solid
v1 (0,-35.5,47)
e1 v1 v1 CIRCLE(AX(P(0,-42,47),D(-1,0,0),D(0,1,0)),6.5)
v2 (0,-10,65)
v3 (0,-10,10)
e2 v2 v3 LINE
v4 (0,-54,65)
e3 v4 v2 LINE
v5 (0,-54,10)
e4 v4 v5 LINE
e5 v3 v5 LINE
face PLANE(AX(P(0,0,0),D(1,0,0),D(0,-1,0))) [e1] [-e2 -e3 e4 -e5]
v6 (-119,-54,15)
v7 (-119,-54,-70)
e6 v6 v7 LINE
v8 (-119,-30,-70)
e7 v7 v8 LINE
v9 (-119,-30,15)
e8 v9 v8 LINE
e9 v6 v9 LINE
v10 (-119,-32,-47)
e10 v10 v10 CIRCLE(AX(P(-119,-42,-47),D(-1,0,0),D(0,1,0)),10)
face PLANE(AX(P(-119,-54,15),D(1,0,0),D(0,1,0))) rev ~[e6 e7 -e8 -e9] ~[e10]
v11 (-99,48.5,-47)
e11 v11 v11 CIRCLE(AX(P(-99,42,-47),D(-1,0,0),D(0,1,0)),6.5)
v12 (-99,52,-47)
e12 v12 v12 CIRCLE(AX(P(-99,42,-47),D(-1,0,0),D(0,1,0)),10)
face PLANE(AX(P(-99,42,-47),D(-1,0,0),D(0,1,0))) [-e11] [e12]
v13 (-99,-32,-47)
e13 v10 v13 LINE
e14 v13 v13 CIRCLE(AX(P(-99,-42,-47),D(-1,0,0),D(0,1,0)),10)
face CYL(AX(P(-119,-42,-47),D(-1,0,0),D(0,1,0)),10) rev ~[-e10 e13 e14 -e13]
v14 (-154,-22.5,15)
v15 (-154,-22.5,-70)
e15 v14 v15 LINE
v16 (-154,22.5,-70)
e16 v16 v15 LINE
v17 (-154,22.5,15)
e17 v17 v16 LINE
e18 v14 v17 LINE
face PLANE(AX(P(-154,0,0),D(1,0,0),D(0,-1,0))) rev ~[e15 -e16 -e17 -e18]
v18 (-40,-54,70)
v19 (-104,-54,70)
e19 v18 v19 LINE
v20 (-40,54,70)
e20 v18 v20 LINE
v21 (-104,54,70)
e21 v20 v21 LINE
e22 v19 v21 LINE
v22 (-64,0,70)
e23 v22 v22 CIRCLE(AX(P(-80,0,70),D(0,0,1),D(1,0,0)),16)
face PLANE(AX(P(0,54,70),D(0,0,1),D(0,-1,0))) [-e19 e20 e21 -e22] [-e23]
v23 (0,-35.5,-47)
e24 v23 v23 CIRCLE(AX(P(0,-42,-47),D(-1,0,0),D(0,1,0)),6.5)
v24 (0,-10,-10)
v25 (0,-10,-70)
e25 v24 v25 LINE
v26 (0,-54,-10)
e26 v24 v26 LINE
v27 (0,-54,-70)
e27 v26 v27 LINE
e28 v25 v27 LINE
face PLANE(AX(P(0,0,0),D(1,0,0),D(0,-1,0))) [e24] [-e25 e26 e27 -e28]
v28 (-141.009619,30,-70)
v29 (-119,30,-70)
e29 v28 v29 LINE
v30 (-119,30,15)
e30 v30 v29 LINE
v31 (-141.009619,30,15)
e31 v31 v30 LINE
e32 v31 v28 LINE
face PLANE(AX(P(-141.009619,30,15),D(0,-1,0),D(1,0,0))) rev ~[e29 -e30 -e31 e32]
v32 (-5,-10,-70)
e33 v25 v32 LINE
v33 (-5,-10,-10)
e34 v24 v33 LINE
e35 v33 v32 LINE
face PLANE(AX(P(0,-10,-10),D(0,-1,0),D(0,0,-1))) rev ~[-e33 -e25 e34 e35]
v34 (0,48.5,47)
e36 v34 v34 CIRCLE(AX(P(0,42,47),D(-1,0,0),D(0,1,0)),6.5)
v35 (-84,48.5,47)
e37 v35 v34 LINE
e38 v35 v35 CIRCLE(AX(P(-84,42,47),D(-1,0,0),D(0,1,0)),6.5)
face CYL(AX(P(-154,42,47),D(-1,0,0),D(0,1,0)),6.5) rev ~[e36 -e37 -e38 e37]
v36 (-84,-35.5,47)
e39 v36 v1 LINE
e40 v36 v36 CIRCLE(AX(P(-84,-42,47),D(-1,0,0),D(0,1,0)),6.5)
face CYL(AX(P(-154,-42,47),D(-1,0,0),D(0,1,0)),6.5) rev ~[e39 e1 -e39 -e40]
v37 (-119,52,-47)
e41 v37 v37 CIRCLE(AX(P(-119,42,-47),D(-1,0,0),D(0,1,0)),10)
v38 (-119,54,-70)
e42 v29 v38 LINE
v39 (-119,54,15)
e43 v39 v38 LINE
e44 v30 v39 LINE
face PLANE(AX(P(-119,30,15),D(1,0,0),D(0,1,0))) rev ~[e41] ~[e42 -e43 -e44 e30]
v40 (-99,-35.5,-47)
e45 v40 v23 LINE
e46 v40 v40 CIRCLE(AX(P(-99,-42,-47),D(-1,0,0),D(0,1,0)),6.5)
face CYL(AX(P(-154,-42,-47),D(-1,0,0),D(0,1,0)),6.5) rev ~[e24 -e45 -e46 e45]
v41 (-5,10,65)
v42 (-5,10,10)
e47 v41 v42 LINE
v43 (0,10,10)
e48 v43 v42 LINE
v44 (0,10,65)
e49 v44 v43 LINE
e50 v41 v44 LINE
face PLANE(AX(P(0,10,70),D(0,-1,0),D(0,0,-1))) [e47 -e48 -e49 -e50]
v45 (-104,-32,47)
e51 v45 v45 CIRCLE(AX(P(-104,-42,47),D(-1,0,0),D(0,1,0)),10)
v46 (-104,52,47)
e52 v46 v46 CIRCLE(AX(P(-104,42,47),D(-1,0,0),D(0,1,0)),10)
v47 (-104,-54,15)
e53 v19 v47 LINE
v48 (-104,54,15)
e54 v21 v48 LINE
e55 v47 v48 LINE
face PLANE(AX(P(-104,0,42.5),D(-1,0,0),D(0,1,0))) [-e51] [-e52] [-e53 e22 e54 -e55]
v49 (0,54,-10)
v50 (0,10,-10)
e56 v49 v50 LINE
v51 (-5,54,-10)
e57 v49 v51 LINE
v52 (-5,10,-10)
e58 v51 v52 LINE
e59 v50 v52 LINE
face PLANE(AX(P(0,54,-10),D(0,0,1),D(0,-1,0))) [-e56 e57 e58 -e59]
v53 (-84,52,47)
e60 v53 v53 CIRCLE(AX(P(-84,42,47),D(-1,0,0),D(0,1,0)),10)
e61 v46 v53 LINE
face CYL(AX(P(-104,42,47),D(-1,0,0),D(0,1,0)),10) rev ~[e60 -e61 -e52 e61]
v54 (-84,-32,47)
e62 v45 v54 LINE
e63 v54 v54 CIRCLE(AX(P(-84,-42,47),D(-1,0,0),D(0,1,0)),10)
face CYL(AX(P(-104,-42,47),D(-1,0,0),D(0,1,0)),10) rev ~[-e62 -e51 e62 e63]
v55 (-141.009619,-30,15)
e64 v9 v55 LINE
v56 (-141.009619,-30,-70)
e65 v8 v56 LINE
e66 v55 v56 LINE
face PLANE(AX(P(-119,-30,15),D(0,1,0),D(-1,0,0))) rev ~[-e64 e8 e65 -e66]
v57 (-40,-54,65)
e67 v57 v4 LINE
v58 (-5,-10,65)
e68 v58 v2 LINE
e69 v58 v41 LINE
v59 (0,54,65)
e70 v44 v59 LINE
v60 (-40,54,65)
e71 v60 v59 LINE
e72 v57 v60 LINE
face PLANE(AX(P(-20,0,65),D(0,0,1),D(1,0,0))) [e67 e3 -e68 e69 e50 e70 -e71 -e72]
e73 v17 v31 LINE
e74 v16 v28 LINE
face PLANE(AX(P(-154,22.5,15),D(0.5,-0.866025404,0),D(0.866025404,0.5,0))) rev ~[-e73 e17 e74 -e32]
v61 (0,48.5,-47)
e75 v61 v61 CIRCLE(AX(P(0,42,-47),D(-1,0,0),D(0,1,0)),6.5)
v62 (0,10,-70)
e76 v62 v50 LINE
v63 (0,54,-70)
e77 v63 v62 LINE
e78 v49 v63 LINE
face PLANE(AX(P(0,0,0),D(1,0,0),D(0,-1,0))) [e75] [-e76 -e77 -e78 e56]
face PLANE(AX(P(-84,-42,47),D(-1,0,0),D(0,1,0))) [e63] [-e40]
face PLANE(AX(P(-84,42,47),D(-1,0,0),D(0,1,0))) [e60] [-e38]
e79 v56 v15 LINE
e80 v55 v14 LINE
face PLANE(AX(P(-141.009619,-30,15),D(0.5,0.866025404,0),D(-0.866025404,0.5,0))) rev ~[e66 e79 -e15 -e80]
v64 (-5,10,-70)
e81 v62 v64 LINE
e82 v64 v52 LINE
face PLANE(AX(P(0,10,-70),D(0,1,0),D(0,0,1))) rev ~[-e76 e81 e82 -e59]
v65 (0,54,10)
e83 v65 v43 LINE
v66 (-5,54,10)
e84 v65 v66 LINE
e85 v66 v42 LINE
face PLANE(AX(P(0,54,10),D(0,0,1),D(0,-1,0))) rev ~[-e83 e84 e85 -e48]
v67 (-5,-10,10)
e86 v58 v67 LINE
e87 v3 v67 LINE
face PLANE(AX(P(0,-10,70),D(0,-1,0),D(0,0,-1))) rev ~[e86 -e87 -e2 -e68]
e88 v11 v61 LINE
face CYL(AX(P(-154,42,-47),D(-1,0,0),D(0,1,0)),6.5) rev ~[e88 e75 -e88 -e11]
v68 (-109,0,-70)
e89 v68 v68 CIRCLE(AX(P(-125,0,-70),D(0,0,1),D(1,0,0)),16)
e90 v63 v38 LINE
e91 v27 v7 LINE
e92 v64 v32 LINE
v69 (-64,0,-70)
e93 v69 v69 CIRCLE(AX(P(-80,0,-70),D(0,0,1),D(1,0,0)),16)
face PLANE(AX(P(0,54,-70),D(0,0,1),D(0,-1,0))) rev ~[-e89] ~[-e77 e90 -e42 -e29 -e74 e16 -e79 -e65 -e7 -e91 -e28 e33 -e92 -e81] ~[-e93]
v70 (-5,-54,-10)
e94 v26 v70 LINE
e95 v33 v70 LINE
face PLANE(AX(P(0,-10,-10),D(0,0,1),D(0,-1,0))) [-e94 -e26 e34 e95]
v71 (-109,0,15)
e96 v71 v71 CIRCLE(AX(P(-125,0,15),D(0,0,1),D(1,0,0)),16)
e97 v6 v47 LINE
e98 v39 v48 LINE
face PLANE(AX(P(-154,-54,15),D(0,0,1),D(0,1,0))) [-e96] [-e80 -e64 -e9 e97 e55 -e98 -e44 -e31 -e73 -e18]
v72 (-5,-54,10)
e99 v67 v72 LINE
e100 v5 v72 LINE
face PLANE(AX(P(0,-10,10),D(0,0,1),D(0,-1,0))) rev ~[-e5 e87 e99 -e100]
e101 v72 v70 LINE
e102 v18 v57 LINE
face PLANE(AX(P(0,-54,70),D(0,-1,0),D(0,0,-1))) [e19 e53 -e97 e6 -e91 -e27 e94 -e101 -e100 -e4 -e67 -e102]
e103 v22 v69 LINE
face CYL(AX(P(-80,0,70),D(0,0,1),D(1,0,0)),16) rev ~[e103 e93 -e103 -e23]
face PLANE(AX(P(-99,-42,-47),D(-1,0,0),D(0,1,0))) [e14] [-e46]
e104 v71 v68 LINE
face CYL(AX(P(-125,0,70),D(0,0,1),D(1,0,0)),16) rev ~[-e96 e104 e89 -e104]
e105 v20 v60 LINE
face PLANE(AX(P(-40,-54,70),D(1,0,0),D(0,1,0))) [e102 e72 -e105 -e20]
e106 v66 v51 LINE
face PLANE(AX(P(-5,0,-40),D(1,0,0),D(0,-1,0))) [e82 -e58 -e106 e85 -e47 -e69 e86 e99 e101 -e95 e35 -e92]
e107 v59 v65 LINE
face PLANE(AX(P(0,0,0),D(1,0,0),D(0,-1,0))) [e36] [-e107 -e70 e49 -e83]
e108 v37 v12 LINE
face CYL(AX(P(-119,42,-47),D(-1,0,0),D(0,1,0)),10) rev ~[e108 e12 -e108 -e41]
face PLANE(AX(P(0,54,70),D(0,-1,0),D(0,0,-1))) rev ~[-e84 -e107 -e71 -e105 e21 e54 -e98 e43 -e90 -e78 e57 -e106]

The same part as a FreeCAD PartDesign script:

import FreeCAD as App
import Part
import Sketcher
Q = App.Units.Quantity

doc = App.newDocument("Part")
params = doc.addObject("Spreadsheet::Sheet", "Params")
for row, (alias, value) in enumerate([
    ("sketch1_width", "108 mm"),
    ("sketch1_height", "140 mm"),
    ("pad1_length", "154 mm"),
    ("sketch2_diameter", "13 mm"),
    ("sketch3_diameter", "32 mm"),
    ("sketch4_width", "108 mm"),
    ("sketch4_height", "55 mm"),
    ("pocket3_length", "50 mm"),
    ("sketch5_width", "35 mm"),
    ("sketch5_height", "24 mm"),
    ("sketch5_length", "15 mm"),
    ("sketch6_width", "40 mm"),
    ("sketch6_height", "108 mm"),
    ("pocket5_length", "5 mm"),
    ("sketch7_diameter", "20 mm"),
    ("pocket6_length", "20 mm"),
    ("sketch8_diameter", "20 mm"),
    ("pocket7_length", "20 mm"),
    ("sketch9_width", "44 mm"),
    ("sketch9_width2", "20 mm"),
    ("sketch9_height", "60 mm"),
    ("pocket8_length", "5 mm"),
], start=1):
    params.set(f"A{row}", alias)
    params.set(f"B{row}", "=" + value)
    params.setAlias(f"B{row}", alias)

body = doc.addObject("PartDesign::Body", "Body")

# Sketch on YZ plane
sketch1 = body.newObject("Sketcher::SketchObject", "Sketch")
sketch1.AttachmentSupport = (doc.getObject("YZ_Plane"), [""])
sketch1.MapMode = "FlatFace"
sketch1.addGeometry([
    Part.LineSegment(App.Vector(-54, 70, 0), App.Vector(-54, -70, 0)),
    Part.LineSegment(App.Vector(-54, -70, 0), App.Vector(54, -70, 0)),
    Part.LineSegment(App.Vector(54, -70, 0), App.Vector(54, 70, 0)),
    Part.LineSegment(App.Vector(54, 70, 0), App.Vector(-54, 70, 0)),
], False)
sketch1.addConstraint([
    Sketcher.Constraint("Coincident", 0, 2, 1, 1),
    Sketcher.Constraint("Coincident", 1, 2, 2, 1),
    Sketcher.Constraint("Coincident", 2, 2, 3, 1),
    Sketcher.Constraint("Coincident", 3, 2, 0, 1),
    Sketcher.Constraint("Vertical", 0),
    Sketcher.Constraint("Horizontal", 1),
    Sketcher.Constraint("Vertical", 2),
    Sketcher.Constraint("Horizontal", 3),
    Sketcher.Constraint("Symmetric", 0, 2, 2, 2, -1, 1),
    Sketcher.Constraint("DistanceX", 1, 1, 1, 2, Q("108 mm")),
    Sketcher.Constraint("DistanceY", 0, 2, 0, 1, Q("140 mm")),
])
sketch1.setExpression("Constraints[9]", "Params.sketch1_width")
sketch1.setExpression("Constraints[10]", "Params.sketch1_height")
pad1 = body.newObject("PartDesign::Pad", "Pad")
pad1.Profile = sketch1
pad1.setExpression("Length", "Params.pad1_length")
pad1.Reversed = True

# Sketch on YZ plane
sketch2 = body.newObject("Sketcher::SketchObject", "Sketch001")
sketch2.AttachmentSupport = (doc.getObject("YZ_Plane"), [""])
sketch2.MapMode = "FlatFace"
sketch2.AttachmentOffset = App.Placement(App.Vector(0, 0, -154), App.Rotation())
sketch2.addGeometry([
    Part.Circle(App.Vector(42, 47, 0), App.Vector(0, 0, 1), 6),
    Part.Circle(App.Vector(-42, 47, 0), App.Vector(0, 0, 1), 6),
    Part.Circle(App.Vector(42, -47, 0), App.Vector(0, 0, 1), 6),
    Part.Circle(App.Vector(-42, -47, 0), App.Vector(0, 0, 1), 6),
], False)
sketch2.addConstraint([
    Sketcher.Constraint("Equal", 0, 1),
    Sketcher.Constraint("Equal", 1, 2),
    Sketcher.Constraint("Equal", 2, 3),
    Sketcher.Constraint("Symmetric", 1, 3, 2, 3, -1, 1),
    Sketcher.Constraint("Symmetric", 0, 3, 3, 3, -1, 1),
    Sketcher.Constraint("Symmetric", 0, 3, 1, 3, -2),
    Sketcher.Constraint("Diameter", 0, Q("13 mm")),
    Sketcher.Constraint("DistanceX", -1, 1, 0, 3, Q("42 mm")),
    Sketcher.Constraint("DistanceY", -1, 1, 0, 3, Q("47 mm")),
])
sketch2.setExpression("Constraints[6]", "Params.sketch2_diameter")
pocket1 = body.newObject("PartDesign::Pocket", "Pocket")
pocket1.Profile = sketch2
pocket1.Type = "ThroughAll"
pocket1.Reversed = True

# Sketch on XY plane
sketch3 = body.newObject("Sketcher::SketchObject", "Sketch002")
sketch3.AttachmentSupport = (doc.getObject("XY_Plane"), [""])
sketch3.MapMode = "FlatFace"
sketch3.AttachmentOffset = App.Placement(App.Vector(0, 0, -70), App.Rotation())
sketch3.addGeometry([
    Part.Circle(App.Vector(-125, 0, 0), App.Vector(0, 0, 1), 16),
    Part.Circle(App.Vector(-80, 0, 0), App.Vector(0, 0, 1), 16),
], False)
sketch3.addConstraint([
    Sketcher.Constraint("Equal", 0, 1),
    Sketcher.Constraint("PointOnObject", 0, 3, -1),
    Sketcher.Constraint("PointOnObject", 1, 3, -1),
    Sketcher.Constraint("Diameter", 0, Q("32 mm")),
    Sketcher.Constraint("DistanceX", 0, 3, -1, 1, Q("125 mm")),
    Sketcher.Constraint("DistanceX", 1, 3, -1, 1, Q("80 mm")),
])
sketch3.setExpression("Constraints[3]", "Params.sketch3_diameter")
pocket2 = body.newObject("PartDesign::Pocket", "Pocket001")
pocket2.Profile = sketch3
pocket2.Type = "ThroughAll"
pocket2.Reversed = True

# Sketch on YZ plane
sketch4 = body.newObject("Sketcher::SketchObject", "Sketch003")
sketch4.AttachmentSupport = (doc.getObject("YZ_Plane"), [""])
sketch4.MapMode = "FlatFace"
sketch4.AttachmentOffset = App.Placement(App.Vector(0, 0, -154), App.Rotation())
sketch4.addGeometry([
    Part.LineSegment(App.Vector(54, -15, 0), App.Vector(54, -70, 0)),
    Part.LineSegment(App.Vector(54, -70, 0), App.Vector(-54, -70, 0)),
    Part.LineSegment(App.Vector(-54, -70, 0), App.Vector(-54, -15, 0)),
    Part.LineSegment(App.Vector(-54, -15, 0), App.Vector(54, -15, 0)),
], False)
sketch4.addConstraint([
    Sketcher.Constraint("Coincident", 0, 2, 1, 1),
    Sketcher.Constraint("Coincident", 1, 2, 2, 1),
    Sketcher.Constraint("Coincident", 2, 2, 3, 1),
    Sketcher.Constraint("Coincident", 3, 2, 0, 1),
    Sketcher.Constraint("Vertical", 0),
    Sketcher.Constraint("Horizontal", 1),
    Sketcher.Constraint("Vertical", 2),
    Sketcher.Constraint("Horizontal", 3),
    Sketcher.Constraint("DistanceX", 1, 2, 1, 1, Q("108 mm")),
    Sketcher.Constraint("DistanceY", 0, 2, 0, 1, Q("55 mm")),
    Sketcher.Constraint("DistanceX", -1, 1, 0, 2, Q("54 mm")),
    Sketcher.Constraint("DistanceY", 0, 2, -1, 1, Q("70 mm")),
])
sketch4.setExpression("Constraints[8]", "Params.sketch4_width")
sketch4.setExpression("Constraints[9]", "Params.sketch4_height")
pocket3 = body.newObject("PartDesign::Pocket", "Pocket002")
pocket3.Profile = sketch4
pocket3.setExpression("Length", "Params.pocket3_length")
pocket3.Reversed = True

# Sketch on XY plane
sketch5 = body.newObject("Sketcher::SketchObject", "Sketch004")
sketch5.AttachmentSupport = (doc.getObject("XY_Plane"), [""])
sketch5.MapMode = "FlatFace"
sketch5.AttachmentOffset = App.Placement(App.Vector(0, 0, -15), App.Rotation())
sketch5.addGeometry([
    Part.LineSegment(App.Vector(-154, 54, 0), App.Vector(-119, 54, 0)),  # 0
    Part.LineSegment(App.Vector(-119, 54, 0), App.Vector(-119, 30, 0)),  # 1
    Part.LineSegment(App.Vector(-119, 30, 0), App.Vector(-141, 30, 0)),  # 2
    Part.LineSegment(App.Vector(-141, 30, 0), App.Vector(-154, 22, 0)),  # 3
    Part.LineSegment(App.Vector(-154, 22, 0), App.Vector(-154, 54, 0)),  # 4
    Part.LineSegment(App.Vector(-119, -30, 0), App.Vector(-119, -54, 0)),  # 5
    Part.LineSegment(App.Vector(-119, -54, 0), App.Vector(-154, -54, 0)),  # 6
    Part.LineSegment(App.Vector(-154, -54, 0), App.Vector(-154, -22, 0)),  # 7
    Part.LineSegment(App.Vector(-154, -22, 0), App.Vector(-141, -30, 0)),  # 8
    Part.LineSegment(App.Vector(-141, -30, 0), App.Vector(-119, -30, 0)),  # 9
], False)
sketch5.addConstraint([
    Sketcher.Constraint("Coincident", 0, 2, 1, 1),
    Sketcher.Constraint("Coincident", 1, 2, 2, 1),
    Sketcher.Constraint("Coincident", 2, 2, 3, 1),
    Sketcher.Constraint("Coincident", 3, 2, 4, 1),
    Sketcher.Constraint("Coincident", 4, 2, 0, 1),
    Sketcher.Constraint("Coincident", 5, 2, 6, 1),
    Sketcher.Constraint("Coincident", 6, 2, 7, 1),
    Sketcher.Constraint("Coincident", 7, 2, 8, 1),
    Sketcher.Constraint("Coincident", 8, 2, 9, 1),
    Sketcher.Constraint("Coincident", 9, 2, 5, 1),
    Sketcher.Constraint("Horizontal", 0),
    Sketcher.Constraint("Vertical", 1),
    Sketcher.Constraint("Horizontal", 2),
    Sketcher.Constraint("Vertical", 4),
    Sketcher.Constraint("Vertical", 5),
    Sketcher.Constraint("Horizontal", 6),
    Sketcher.Constraint("Vertical", 7),
    Sketcher.Constraint("Horizontal", 9),
    Sketcher.Constraint("Symmetric", 0, 2, 5, 2, -1),
    Sketcher.Constraint("Symmetric", 3, 2, 7, 2, -1),
    Sketcher.Constraint("Symmetric", 2, 2, 8, 2, -1),
    Sketcher.Constraint("DistanceX", 0, 1, 0, 2, Q("35 mm")),
    Sketcher.Constraint("DistanceY", 1, 2, 1, 1, Q("24 mm")),
    Sketcher.Constraint("Angle", 3, Q("-150 deg")),
    Sketcher.Constraint("Distance", 3, Q("15 mm")),
    Sketcher.Constraint("DistanceX", 0, 2, -1, 1, Q("119 mm")),
    Sketcher.Constraint("DistanceY", -1, 1, 0, 2, Q("54 mm")),
])
sketch5.setExpression("Constraints[21]", "Params.sketch5_width")
sketch5.setExpression("Constraints[22]", "Params.sketch5_height")
sketch5.setExpression("Constraints[24]", "Params.sketch5_length")
pocket4 = body.newObject("PartDesign::Pocket", "Pocket003")
pocket4.Profile = sketch5
pocket4.Type = "ThroughAll"
pocket4.Reversed = True

# Sketch on XY plane
sketch6 = body.newObject("Sketcher::SketchObject", "Sketch005")
sketch6.AttachmentSupport = (doc.getObject("XY_Plane"), [""])
sketch6.MapMode = "FlatFace"
sketch6.AttachmentOffset = App.Placement(App.Vector(0, 0, -70), App.Rotation())
sketch6.addGeometry([
    Part.LineSegment(App.Vector(-40, -54, 0), App.Vector(-40, 54, 0)),
    Part.LineSegment(App.Vector(-40, 54, 0), App.Vector(0, 54, 0)),
    Part.LineSegment(App.Vector(0, 54, 0), App.Vector(0, -54, 0)),
    Part.LineSegment(App.Vector(0, -54, 0), App.Vector(-40, -54, 0)),
], False)
sketch6.addConstraint([
    Sketcher.Constraint("Coincident", 0, 2, 1, 1),
    Sketcher.Constraint("Coincident", 1, 2, 2, 1),
    Sketcher.Constraint("Coincident", 2, 2, 3, 1),
    Sketcher.Constraint("Coincident", 3, 2, 0, 1),
    Sketcher.Constraint("Vertical", 0),
    Sketcher.Constraint("Horizontal", 1),
    Sketcher.Constraint("Vertical", 2),
    Sketcher.Constraint("Horizontal", 3),
    Sketcher.Constraint("Symmetric", 1, 2, 2, 2, -1, 1),
    Sketcher.Constraint("DistanceX", 1, 1, 1, 2, Q("40 mm")),
    Sketcher.Constraint("DistanceY", 0, 1, 0, 2, Q("108 mm")),
])
sketch6.setExpression("Constraints[9]", "Params.sketch6_width")
sketch6.setExpression("Constraints[10]", "Params.sketch6_height")
pocket5 = body.newObject("PartDesign::Pocket", "Pocket004")
pocket5.Profile = sketch6
pocket5.setExpression("Length", "Params.pocket5_length")
pocket5.Reversed = True

# Sketch on YZ plane
sketch7 = body.newObject("Sketcher::SketchObject", "Sketch006")
sketch7.AttachmentSupport = (doc.getObject("YZ_Plane"), [""])
sketch7.MapMode = "FlatFace"
sketch7.AttachmentOffset = App.Placement(App.Vector(0, 0, -104), App.Rotation())
sketch7.addGeometry([
    Part.Circle(App.Vector(42, -47, 0), App.Vector(0, 0, 1), 10),
    Part.Circle(App.Vector(-42, -47, 0), App.Vector(0, 0, 1), 10),
], False)
sketch7.addConstraint([
    Sketcher.Constraint("Equal", 0, 1),
    Sketcher.Constraint("Symmetric", 0, 3, 1, 3, -2),
    Sketcher.Constraint("Diameter", 0, Q("20 mm")),
    Sketcher.Constraint("DistanceX", -1, 1, 0, 3, Q("42 mm")),
    Sketcher.Constraint("DistanceY", 0, 3, -1, 1, Q("47 mm")),
])
sketch7.setExpression("Constraints[2]", "Params.sketch7_diameter")
pocket6 = body.newObject("PartDesign::Pocket", "Pocket005")
pocket6.Profile = sketch7
pocket6.setExpression("Length", "Params.pocket6_length")
pocket6.Reversed = True

# Sketch on YZ plane
sketch8 = body.newObject("Sketcher::SketchObject", "Sketch007")
sketch8.AttachmentSupport = (doc.getObject("YZ_Plane"), [""])
sketch8.MapMode = "FlatFace"
sketch8.AttachmentOffset = App.Placement(App.Vector(0, 0, -119), App.Rotation())
sketch8.addGeometry([
    Part.Circle(App.Vector(42, 47, 0), App.Vector(0, 0, 1), 10),
    Part.Circle(App.Vector(-42, 47, 0), App.Vector(0, 0, 1), 10),
], False)
sketch8.addConstraint([
    Sketcher.Constraint("Equal", 0, 1),
    Sketcher.Constraint("Symmetric", 0, 3, 1, 3, -2),
    Sketcher.Constraint("Diameter", 0, Q("20 mm")),
    Sketcher.Constraint("DistanceX", -1, 1, 0, 3, Q("42 mm")),
    Sketcher.Constraint("DistanceY", -1, 1, 0, 3, Q("47 mm")),
])
sketch8.setExpression("Constraints[2]", "Params.sketch8_diameter")
pocket7 = body.newObject("PartDesign::Pocket", "Pocket006")
pocket7.Profile = sketch8
pocket7.setExpression("Length", "Params.pocket7_length")
pocket7.Reversed = True

# Sketch on YZ plane
sketch9 = body.newObject("Sketcher::SketchObject", "Sketch008")
sketch9.AttachmentSupport = (doc.getObject("YZ_Plane"), [""])
sketch9.MapMode = "FlatFace"
sketch9.addGeometry([
    Part.LineSegment(App.Vector(-10, 70, 0), App.Vector(-10, 10, 0)),  # 0
    Part.LineSegment(App.Vector(-10, 10, 0), App.Vector(-54, 10, 0)),  # 1
    Part.LineSegment(App.Vector(-54, 10, 0), App.Vector(-54, -10, 0)),  # 2
    Part.LineSegment(App.Vector(-54, -10, 0), App.Vector(-10, -10, 0)),  # 3
    Part.LineSegment(App.Vector(-10, -10, 0), App.Vector(-10, -70, 0)),  # 4
    Part.LineSegment(App.Vector(-10, -70, 0), App.Vector(10, -70, 0)),  # 5
    Part.LineSegment(App.Vector(10, -70, 0), App.Vector(10, -10, 0)),  # 6
    Part.LineSegment(App.Vector(10, -10, 0), App.Vector(54, -10, 0)),  # 7
    Part.LineSegment(App.Vector(54, -10, 0), App.Vector(54, 10, 0)),  # 8
    Part.LineSegment(App.Vector(54, 10, 0), App.Vector(10, 10, 0)),  # 9
    Part.LineSegment(App.Vector(10, 10, 0), App.Vector(10, 70, 0)),  # 10
    Part.LineSegment(App.Vector(10, 70, 0), App.Vector(-10, 70, 0)),  # 11
], False)
sketch9.addConstraint([
    Sketcher.Constraint("Coincident", 0, 2, 1, 1),
    Sketcher.Constraint("Coincident", 1, 2, 2, 1),
    Sketcher.Constraint("Coincident", 2, 2, 3, 1),
    Sketcher.Constraint("Coincident", 3, 2, 4, 1),
    Sketcher.Constraint("Coincident", 4, 2, 5, 1),
    Sketcher.Constraint("Coincident", 5, 2, 6, 1),
    Sketcher.Constraint("Coincident", 6, 2, 7, 1),
    Sketcher.Constraint("Coincident", 7, 2, 8, 1),
    Sketcher.Constraint("Coincident", 8, 2, 9, 1),
    Sketcher.Constraint("Coincident", 9, 2, 10, 1),
    Sketcher.Constraint("Coincident", 10, 2, 11, 1),
    Sketcher.Constraint("Coincident", 11, 2, 0, 1),
    Sketcher.Constraint("Vertical", 0),
    Sketcher.Constraint("Horizontal", 1),
    Sketcher.Constraint("Vertical", 2),
    Sketcher.Constraint("Horizontal", 3),
    Sketcher.Constraint("Vertical", 4),
    Sketcher.Constraint("Horizontal", 5),
    Sketcher.Constraint("Vertical", 6),
    Sketcher.Constraint("Horizontal", 7),
    Sketcher.Constraint("Vertical", 8),
    Sketcher.Constraint("Horizontal", 9),
    Sketcher.Constraint("Vertical", 10),
    Sketcher.Constraint("Horizontal", 11),
    Sketcher.Constraint("Symmetric", 0, 2, 6, 2, -1, 1),
    Sketcher.Constraint("Symmetric", 2, 2, 8, 2, -1, 1),
    Sketcher.Constraint("Symmetric", 4, 2, 10, 2, -1, 1),
    Sketcher.Constraint("Symmetric", 3, 2, 6, 2, -2),
    Sketcher.Constraint("Equal", 11, 2),
    Sketcher.Constraint("DistanceX", 1, 2, 1, 1, Q("44 mm")),
    Sketcher.Constraint("DistanceX", 5, 1, 5, 2, Q("20 mm")),
    Sketcher.Constraint("DistanceY", 0, 2, 0, 1, Q("60 mm")),
])
sketch9.setExpression("Constraints[29]", "Params.sketch9_width")
sketch9.setExpression("Constraints[30]", "Params.sketch9_width2")
sketch9.setExpression("Constraints[31]", "Params.sketch9_height")
pocket8 = body.newObject("PartDesign::Pocket", "Pocket007")
pocket8.Profile = sketch9
pocket8.setExpression("Length", "Params.pocket8_length")
body2 = doc.addObject("PartDesign::Body", "Body001")
doc.recompute()

body.Placement = App.Placement(App.Vector(0, 0, 0), App.Rotation(App.Vector(1, 0, 0), 180))
boolean = body2.newObject("PartDesign::Boolean", "Boolean")
boolean.Type = "Fuse"
boolean.addObjects([body])

doc.recompute()
